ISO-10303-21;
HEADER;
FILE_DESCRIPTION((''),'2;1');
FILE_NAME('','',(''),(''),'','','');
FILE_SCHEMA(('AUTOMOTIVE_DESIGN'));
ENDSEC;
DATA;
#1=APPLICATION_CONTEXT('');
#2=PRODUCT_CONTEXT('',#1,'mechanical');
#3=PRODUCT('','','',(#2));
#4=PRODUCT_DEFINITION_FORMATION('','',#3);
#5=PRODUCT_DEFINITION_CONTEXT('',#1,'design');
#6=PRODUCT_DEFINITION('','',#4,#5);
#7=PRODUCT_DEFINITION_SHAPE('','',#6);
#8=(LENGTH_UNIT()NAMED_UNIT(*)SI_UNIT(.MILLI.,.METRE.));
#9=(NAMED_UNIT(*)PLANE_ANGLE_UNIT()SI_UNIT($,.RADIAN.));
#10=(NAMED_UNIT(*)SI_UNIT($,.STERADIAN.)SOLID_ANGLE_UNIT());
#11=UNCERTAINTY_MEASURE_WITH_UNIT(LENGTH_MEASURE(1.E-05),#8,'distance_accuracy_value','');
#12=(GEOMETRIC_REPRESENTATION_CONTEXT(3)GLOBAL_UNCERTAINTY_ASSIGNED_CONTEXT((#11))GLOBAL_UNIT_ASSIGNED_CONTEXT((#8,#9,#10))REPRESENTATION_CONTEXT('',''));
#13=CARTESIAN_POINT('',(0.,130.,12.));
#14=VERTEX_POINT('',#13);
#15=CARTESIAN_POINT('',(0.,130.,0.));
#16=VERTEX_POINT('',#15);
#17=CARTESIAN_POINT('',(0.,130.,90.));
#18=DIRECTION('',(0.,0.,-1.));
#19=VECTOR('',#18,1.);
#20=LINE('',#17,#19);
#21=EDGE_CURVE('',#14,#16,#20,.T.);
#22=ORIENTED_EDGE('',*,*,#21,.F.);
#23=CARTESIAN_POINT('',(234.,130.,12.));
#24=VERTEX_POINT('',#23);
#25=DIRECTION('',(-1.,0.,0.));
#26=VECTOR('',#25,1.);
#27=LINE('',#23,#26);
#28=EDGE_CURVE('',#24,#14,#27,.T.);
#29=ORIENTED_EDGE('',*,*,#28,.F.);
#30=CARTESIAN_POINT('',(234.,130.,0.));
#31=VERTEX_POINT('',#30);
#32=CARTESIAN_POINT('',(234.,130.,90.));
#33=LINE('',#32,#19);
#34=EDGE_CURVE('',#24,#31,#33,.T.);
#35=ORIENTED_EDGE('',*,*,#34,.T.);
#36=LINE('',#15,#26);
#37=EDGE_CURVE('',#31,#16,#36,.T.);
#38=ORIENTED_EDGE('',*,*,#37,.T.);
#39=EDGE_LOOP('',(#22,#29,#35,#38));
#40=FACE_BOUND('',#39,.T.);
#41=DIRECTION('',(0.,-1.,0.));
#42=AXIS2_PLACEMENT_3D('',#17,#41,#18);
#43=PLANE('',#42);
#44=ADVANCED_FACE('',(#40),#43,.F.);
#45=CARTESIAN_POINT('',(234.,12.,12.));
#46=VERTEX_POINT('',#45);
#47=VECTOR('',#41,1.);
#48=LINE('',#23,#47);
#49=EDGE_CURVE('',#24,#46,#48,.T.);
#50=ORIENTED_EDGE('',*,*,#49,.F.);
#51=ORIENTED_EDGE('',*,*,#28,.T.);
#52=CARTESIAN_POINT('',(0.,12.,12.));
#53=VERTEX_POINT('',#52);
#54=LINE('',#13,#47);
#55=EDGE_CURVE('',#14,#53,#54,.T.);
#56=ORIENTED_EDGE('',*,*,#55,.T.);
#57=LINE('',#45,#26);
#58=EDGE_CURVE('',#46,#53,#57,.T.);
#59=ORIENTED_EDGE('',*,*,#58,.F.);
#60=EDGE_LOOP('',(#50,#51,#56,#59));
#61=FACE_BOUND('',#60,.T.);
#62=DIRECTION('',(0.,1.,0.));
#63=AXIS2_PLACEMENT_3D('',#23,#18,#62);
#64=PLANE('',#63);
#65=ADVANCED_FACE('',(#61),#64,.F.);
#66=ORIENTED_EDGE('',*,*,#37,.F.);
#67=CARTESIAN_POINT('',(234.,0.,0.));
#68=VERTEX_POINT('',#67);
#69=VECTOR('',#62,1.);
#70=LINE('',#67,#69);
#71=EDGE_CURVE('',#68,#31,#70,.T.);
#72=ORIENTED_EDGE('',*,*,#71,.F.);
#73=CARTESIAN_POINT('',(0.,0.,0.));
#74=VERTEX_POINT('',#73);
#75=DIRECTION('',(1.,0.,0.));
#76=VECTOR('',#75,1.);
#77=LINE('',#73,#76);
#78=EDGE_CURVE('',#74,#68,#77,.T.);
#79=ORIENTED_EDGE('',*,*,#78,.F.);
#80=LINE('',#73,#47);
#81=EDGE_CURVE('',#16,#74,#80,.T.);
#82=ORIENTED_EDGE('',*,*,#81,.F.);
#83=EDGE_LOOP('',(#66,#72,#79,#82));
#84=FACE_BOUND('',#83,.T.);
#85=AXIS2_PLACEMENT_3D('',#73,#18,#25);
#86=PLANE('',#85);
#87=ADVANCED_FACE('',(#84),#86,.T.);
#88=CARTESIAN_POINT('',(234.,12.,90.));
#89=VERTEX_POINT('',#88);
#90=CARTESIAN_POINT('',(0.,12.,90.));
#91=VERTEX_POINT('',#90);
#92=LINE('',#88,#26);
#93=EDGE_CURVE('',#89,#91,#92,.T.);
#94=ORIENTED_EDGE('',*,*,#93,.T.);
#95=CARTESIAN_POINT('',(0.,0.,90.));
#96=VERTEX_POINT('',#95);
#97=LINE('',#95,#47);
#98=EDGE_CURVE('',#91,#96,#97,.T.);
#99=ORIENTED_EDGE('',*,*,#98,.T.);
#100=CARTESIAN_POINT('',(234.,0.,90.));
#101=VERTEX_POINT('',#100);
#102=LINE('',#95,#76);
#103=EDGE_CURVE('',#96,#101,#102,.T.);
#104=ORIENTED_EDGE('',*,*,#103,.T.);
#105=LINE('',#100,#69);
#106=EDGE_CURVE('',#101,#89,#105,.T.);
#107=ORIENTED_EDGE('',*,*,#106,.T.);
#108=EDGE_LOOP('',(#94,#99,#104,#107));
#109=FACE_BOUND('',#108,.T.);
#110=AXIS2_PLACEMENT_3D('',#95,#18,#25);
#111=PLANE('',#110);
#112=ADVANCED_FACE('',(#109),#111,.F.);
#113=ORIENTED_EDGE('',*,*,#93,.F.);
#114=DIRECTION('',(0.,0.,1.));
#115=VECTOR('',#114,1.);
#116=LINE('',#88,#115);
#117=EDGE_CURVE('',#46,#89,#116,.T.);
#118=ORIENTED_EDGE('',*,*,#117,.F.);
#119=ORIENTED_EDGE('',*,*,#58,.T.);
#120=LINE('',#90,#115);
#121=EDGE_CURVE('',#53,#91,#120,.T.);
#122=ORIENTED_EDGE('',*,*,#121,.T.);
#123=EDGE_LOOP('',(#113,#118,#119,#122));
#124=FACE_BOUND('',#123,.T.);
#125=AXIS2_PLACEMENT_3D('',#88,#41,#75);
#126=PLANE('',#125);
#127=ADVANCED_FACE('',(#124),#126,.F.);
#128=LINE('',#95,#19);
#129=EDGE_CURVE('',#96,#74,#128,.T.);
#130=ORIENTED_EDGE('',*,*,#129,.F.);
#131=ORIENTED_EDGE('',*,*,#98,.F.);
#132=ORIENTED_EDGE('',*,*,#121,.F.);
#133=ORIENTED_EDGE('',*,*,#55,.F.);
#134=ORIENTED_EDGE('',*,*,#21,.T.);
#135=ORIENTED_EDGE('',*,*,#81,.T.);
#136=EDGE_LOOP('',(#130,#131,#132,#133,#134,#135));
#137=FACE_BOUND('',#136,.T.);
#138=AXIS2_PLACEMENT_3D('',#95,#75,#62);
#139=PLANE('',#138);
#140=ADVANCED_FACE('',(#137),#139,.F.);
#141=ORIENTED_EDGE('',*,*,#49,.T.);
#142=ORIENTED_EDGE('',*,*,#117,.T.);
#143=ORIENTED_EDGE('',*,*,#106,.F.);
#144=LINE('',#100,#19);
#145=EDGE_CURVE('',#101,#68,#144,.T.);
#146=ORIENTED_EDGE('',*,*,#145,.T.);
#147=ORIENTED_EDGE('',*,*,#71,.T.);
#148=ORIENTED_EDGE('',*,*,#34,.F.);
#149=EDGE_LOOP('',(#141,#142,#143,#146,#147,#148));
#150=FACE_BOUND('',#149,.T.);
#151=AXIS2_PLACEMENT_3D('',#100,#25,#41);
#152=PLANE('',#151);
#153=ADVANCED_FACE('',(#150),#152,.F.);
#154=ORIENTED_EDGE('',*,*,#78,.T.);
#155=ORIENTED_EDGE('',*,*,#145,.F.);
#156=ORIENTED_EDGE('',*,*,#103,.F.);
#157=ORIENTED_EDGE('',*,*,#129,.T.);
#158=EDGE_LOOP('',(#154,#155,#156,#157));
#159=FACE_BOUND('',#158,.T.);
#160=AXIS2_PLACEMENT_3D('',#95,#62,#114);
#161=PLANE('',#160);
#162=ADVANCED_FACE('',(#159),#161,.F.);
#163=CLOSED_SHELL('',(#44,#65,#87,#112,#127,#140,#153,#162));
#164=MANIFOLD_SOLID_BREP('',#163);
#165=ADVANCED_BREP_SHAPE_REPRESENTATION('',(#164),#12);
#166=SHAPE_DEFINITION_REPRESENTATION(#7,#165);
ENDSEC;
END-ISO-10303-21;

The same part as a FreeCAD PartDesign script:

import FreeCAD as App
import Part
import Sketcher

V = App.Vector
Q = App.Units.Quantity


def add_polygon(sketch, points):
    """Adds a closed chain of lines whose ends are joined by coincident constraints."""
    first, n = sketch.GeometryCount, len(points)
    for a, b in zip(points, points[1:] + points[:1]):
        sketch.addGeometry(Part.LineSegment(App.Vector(*a, 0), App.Vector(*b, 0)), False)
    for i in range(n):
        sketch.addConstraint(Sketcher.Constraint("Coincident", first + i, 2, first + (i + 1) % n, 1))

doc = App.newDocument("Part")
params = doc.addObject("Spreadsheet::Sheet", "Params")
for row, (alias, value) in enumerate([
    ("sketch1_width", "234 mm"),
    ("sketch1_height", "130 mm"),
    ("pad1_length", "90 mm"),
    ("sketch2_width", "118 mm"),
    ("sketch2_height", "78 mm"),
], start=1):
    params.set(f"A{row}", alias)
    params.set(f"B{row}", "=" + value)
    params.setAlias(f"B{row}", alias)

body = doc.addObject("PartDesign::Body", "Body")

sketch1 = doc.addObject("Sketcher::SketchObject", "Sketch")
body.addObject(sketch1)
sketch1.AttachmentSupport = (doc.XY_Plane, [""])
sketch1.MapMode = "FlatFace"
add_polygon(sketch1, [(0, 130), (0, 0), (234, 0), (234, 130)])
sketch1.addConstraint([
    Sketcher.Constraint("Vertical", 0),
    Sketcher.Constraint("Horizontal", 1),
    Sketcher.Constraint("Vertical", 2),
    Sketcher.Constraint("Horizontal", 3),
    Sketcher.Constraint("Coincident", 0, 2, -1, 1),
    Sketcher.Constraint("DistanceX", 1, 1, 1, 2, Q("234 mm")),
    Sketcher.Constraint("DistanceY", 0, 2, 0, 1, Q("130 mm")),
])
sketch1.setExpression("Constraints[9]", "Params.sketch1_width")
sketch1.setExpression("Constraints[10]", "Params.sketch1_height")
pad1 = doc.addObject("PartDesign::Pad", "Pad")
body.addObject(pad1)
pad1.Profile = sketch1
pad1.setExpression("Length", "Params.pad1_length")

sketch2 = doc.addObject("Sketcher::SketchObject", "Sketch001")
body.addObject(sketch2)
sketch2.AttachmentSupport = (doc.YZ_Plane, [""])
sketch2.MapMode = "FlatFace"
add_polygon(sketch2, [(130, 12), (12, 12), (12, 90), (130, 90)])
sketch2.addConstraint([
    Sketcher.Constraint("Horizontal", 0),
    Sketcher.Constraint("Vertical", 1),
    Sketcher.Constraint("Horizontal", 2),
    Sketcher.Constraint("Vertical", 3),
    Sketcher.Constraint("DistanceX", 0, 2, 0, 1, Q("118 mm")),
    Sketcher.Constraint("DistanceY", 1, 1, 1, 2, Q("78 mm")),
    Sketcher.Constraint("DistanceX", -1, 1, 0, 2, Q("12 mm")),
    Sketcher.Constraint("DistanceY", -1, 1, 0, 2, Q("12 mm")),
])
sketch2.setExpression("Constraints[8]", "Params.sketch2_width")
sketch2.setExpression("Constraints[9]", "Params.sketch2_height")
pocket1 = doc.addObject("PartDesign::Pocket", "Pocket")
body.addObject(pocket1)
pocket1.Profile = sketch2
pocket1.Type = "ThroughAll"
pocket1.Reversed = True

doc.recompute()
